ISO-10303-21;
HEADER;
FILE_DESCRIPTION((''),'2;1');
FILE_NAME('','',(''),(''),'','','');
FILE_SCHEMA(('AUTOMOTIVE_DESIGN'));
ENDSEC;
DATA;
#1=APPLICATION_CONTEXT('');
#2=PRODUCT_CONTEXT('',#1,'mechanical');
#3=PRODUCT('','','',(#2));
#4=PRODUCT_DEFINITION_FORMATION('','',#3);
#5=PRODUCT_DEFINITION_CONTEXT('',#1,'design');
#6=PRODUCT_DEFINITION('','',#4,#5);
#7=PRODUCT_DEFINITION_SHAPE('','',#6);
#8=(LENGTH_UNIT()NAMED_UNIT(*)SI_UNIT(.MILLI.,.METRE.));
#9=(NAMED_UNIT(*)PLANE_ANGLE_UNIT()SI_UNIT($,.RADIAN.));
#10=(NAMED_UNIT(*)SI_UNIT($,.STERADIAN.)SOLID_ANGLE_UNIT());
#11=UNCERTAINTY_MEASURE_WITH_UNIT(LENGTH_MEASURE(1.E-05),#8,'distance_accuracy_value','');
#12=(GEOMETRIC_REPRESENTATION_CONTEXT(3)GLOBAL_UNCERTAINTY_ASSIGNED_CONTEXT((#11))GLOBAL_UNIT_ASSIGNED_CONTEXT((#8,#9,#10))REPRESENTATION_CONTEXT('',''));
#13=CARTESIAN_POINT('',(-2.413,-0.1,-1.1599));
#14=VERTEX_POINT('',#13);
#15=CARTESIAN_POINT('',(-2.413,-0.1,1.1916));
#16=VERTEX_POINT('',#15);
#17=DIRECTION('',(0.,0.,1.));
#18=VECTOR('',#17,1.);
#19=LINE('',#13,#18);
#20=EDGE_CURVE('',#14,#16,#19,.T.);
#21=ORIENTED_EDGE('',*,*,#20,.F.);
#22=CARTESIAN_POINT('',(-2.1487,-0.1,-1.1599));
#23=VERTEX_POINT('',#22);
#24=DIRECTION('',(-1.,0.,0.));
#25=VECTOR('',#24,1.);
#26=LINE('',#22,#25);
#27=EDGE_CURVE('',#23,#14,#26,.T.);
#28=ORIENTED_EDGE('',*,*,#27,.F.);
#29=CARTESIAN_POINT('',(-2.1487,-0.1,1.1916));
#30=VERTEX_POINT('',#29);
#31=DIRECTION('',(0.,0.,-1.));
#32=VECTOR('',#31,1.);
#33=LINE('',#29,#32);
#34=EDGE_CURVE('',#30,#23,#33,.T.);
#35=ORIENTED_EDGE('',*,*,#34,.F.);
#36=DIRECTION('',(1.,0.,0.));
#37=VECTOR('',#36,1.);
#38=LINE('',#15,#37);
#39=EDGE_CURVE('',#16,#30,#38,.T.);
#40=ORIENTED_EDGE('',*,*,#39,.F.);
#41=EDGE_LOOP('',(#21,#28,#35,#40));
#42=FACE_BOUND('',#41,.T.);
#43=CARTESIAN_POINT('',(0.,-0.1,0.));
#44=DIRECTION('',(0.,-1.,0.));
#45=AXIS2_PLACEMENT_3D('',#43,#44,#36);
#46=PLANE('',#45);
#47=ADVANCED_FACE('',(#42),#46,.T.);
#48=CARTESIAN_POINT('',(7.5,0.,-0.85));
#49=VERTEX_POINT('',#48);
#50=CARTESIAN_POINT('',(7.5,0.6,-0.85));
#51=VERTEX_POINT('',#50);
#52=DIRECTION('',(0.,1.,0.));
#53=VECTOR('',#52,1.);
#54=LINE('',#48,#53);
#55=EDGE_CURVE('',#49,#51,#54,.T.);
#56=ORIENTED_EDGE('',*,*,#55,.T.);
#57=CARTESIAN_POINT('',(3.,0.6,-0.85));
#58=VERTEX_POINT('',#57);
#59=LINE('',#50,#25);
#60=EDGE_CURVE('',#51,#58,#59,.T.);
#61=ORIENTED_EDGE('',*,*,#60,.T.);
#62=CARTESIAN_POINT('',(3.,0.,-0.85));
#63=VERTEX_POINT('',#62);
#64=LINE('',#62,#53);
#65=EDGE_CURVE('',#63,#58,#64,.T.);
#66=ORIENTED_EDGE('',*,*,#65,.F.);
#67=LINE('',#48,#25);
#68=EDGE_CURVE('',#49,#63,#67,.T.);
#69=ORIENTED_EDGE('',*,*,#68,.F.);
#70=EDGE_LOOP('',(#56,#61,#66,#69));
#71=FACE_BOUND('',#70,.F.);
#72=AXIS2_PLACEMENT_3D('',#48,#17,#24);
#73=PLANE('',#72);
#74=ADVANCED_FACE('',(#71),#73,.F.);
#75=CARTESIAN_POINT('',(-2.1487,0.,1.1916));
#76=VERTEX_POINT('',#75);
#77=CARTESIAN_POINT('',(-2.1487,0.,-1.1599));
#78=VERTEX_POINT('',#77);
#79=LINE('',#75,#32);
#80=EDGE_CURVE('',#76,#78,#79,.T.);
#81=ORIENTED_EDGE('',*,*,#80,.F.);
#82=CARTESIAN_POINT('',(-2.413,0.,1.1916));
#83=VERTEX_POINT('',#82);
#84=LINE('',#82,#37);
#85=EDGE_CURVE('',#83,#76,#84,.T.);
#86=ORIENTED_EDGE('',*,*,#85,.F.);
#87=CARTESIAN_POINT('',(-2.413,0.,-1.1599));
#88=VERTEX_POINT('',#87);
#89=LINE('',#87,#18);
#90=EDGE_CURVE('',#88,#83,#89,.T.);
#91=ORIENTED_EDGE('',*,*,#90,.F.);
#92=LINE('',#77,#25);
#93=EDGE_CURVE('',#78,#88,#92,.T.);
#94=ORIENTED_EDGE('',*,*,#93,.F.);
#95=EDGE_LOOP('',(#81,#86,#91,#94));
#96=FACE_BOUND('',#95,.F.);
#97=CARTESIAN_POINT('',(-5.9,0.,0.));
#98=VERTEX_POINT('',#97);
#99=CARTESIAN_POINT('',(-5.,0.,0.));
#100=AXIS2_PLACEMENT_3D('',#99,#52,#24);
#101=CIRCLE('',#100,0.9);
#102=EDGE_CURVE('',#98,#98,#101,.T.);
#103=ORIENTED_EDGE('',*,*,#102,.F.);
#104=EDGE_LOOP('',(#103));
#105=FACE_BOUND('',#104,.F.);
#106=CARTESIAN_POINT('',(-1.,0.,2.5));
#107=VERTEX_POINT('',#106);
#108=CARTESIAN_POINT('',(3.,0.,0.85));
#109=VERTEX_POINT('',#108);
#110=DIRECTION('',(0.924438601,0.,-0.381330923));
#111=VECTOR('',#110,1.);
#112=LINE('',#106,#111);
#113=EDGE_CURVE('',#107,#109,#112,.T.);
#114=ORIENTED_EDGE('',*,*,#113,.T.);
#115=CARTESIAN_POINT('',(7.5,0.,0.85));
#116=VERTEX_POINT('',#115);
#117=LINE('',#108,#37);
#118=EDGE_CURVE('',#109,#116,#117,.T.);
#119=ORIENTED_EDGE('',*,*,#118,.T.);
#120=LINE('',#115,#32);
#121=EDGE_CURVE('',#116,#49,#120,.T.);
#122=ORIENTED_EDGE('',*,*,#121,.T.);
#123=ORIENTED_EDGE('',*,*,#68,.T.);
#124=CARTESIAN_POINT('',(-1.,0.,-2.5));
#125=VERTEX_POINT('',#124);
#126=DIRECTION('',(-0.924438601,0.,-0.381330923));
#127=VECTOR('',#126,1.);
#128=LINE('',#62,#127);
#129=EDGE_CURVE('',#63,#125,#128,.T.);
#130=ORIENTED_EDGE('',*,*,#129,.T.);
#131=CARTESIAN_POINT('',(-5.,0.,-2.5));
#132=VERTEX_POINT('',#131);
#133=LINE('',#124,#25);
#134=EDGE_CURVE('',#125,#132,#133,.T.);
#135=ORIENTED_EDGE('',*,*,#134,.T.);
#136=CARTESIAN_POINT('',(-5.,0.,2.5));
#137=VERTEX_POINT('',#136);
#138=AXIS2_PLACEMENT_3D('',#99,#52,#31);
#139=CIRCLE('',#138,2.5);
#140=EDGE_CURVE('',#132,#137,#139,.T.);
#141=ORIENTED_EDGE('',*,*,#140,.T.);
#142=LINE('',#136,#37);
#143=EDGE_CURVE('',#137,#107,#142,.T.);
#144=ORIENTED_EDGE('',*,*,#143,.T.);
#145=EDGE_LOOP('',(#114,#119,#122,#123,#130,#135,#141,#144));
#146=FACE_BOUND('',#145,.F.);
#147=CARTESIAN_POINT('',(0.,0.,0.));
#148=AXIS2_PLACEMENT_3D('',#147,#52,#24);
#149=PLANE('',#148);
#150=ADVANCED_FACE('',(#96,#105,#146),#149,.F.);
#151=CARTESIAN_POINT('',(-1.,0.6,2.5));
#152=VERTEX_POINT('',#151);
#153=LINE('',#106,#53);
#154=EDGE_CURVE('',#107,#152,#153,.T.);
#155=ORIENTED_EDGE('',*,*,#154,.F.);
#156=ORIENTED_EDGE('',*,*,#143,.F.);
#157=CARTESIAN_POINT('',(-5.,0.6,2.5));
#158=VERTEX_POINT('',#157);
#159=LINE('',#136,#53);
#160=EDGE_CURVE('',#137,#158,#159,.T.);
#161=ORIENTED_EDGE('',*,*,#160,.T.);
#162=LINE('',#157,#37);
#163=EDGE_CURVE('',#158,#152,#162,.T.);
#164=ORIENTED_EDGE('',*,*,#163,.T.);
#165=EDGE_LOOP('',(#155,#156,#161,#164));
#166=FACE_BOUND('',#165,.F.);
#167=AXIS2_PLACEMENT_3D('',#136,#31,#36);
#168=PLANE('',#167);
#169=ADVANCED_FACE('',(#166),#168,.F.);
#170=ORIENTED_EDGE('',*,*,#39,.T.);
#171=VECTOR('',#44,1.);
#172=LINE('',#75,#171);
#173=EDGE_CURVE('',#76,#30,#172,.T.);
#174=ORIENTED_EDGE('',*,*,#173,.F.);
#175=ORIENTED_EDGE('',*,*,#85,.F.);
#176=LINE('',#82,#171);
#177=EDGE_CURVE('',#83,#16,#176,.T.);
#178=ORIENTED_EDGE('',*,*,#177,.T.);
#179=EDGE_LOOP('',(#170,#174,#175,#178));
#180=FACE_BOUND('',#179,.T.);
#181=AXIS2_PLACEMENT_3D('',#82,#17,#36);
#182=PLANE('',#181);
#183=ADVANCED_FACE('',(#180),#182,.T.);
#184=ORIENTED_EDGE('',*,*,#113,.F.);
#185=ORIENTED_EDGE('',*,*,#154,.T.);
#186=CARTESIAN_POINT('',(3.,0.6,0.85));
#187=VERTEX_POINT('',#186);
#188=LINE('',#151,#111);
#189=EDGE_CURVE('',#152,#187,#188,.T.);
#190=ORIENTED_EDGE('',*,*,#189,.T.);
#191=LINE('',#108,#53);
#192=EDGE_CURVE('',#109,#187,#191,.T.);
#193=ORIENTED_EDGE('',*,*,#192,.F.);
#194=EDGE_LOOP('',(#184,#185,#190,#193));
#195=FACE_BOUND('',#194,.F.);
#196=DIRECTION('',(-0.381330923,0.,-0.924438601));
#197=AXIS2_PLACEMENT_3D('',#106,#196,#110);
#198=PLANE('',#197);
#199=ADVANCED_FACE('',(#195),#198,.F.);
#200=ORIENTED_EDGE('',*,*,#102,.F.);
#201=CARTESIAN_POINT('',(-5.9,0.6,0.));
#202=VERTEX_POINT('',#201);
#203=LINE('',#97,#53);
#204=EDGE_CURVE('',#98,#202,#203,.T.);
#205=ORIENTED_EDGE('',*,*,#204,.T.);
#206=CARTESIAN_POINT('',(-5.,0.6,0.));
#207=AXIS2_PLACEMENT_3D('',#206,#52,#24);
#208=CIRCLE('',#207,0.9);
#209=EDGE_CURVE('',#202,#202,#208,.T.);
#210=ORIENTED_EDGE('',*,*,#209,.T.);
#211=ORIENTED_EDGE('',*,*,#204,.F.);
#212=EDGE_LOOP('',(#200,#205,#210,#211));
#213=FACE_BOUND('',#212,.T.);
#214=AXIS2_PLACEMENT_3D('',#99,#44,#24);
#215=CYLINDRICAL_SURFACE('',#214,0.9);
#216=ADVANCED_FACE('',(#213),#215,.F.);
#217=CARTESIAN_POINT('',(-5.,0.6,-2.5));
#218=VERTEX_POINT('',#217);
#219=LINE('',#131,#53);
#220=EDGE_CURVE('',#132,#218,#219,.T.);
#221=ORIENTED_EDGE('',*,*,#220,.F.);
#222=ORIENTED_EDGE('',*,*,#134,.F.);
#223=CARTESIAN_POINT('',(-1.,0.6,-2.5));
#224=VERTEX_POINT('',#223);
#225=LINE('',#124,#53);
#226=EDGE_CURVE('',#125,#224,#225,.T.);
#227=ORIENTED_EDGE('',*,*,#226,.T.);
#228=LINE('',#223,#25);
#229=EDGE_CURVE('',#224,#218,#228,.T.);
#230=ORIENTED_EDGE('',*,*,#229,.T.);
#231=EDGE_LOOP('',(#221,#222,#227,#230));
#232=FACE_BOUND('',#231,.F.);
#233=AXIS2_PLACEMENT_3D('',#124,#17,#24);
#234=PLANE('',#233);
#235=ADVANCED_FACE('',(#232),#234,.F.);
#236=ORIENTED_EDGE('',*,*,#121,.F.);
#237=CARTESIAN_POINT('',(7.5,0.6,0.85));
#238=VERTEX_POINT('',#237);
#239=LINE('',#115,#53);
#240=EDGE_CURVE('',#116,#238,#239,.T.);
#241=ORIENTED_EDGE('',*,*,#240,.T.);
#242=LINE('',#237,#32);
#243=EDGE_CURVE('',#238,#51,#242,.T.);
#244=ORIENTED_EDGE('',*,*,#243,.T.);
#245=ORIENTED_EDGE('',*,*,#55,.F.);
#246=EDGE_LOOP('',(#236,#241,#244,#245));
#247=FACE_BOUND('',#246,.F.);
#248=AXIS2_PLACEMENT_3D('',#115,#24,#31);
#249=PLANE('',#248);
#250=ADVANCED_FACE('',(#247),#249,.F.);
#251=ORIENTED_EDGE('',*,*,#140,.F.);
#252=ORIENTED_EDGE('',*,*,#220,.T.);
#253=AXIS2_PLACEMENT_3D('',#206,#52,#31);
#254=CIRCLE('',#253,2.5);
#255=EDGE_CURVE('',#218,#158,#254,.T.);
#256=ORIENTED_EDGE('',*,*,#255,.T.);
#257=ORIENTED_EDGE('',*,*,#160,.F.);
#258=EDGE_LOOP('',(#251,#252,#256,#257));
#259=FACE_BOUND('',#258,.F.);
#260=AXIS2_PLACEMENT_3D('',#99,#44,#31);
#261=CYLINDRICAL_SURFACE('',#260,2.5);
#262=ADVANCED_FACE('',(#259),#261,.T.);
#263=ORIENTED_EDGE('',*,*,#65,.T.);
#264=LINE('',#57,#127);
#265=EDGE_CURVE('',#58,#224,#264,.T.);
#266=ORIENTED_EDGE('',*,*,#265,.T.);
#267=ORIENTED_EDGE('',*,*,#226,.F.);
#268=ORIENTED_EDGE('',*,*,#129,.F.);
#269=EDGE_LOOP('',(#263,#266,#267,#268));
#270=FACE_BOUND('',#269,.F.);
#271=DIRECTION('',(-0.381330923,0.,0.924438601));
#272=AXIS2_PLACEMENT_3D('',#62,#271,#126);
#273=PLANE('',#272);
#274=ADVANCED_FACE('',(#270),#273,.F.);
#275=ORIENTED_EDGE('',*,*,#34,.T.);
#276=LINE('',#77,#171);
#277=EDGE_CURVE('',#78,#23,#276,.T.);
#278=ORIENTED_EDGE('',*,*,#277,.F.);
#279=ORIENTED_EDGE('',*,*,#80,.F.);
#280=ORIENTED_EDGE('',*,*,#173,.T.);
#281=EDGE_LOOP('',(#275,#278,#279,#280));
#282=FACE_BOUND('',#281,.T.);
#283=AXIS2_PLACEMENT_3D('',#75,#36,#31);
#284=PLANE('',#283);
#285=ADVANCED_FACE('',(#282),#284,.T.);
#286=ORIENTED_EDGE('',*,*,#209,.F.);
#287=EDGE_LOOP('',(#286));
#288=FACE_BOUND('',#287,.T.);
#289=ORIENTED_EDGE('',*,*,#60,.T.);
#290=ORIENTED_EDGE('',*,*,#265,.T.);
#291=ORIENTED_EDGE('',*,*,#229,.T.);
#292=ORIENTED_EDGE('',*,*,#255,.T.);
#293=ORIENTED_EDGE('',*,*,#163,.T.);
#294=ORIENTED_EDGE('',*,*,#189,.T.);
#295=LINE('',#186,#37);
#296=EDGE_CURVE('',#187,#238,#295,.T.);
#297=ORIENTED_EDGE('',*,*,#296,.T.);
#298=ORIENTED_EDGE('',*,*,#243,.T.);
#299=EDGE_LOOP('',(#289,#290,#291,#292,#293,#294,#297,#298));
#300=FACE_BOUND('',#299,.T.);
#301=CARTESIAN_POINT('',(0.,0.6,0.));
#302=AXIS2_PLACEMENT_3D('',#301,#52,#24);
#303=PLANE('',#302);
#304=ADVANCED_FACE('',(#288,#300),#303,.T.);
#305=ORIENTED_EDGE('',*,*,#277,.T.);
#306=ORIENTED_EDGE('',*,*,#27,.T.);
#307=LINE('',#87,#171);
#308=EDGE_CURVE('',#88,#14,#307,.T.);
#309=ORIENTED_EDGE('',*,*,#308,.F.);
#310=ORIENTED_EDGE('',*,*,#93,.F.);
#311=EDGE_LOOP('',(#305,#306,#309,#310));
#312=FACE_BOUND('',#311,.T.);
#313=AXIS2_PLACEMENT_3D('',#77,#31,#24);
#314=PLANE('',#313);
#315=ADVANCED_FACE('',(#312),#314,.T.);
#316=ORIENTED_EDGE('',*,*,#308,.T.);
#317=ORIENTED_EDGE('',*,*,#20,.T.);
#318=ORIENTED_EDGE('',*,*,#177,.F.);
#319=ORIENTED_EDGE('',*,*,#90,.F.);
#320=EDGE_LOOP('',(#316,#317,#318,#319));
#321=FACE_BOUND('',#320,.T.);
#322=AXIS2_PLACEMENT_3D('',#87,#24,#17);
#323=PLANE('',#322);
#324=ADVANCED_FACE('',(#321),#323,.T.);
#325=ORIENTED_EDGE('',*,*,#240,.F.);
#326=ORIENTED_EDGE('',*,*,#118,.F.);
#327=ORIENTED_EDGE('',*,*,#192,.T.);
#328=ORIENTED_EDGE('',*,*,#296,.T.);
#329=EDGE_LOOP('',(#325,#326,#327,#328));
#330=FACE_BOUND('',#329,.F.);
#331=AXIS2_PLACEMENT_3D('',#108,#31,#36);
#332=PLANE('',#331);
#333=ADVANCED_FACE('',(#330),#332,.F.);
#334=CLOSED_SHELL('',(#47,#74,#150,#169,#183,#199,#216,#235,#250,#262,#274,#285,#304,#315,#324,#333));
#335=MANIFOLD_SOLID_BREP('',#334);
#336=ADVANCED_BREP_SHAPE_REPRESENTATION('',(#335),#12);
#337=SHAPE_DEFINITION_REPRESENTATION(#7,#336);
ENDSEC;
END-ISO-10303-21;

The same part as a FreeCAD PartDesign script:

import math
import FreeCAD as App
import Part
import Sketcher

V = App.Vector


def add_polygon(sketch, points):
    """Adds a closed chain of lines whose ends are joined by coincident constraints."""
    first, n = sketch.GeometryCount, len(points)
    for a, b in zip(points, points[1:] + points[:1]):
        sketch.addGeometry(Part.LineSegment(App.Vector(*a, 0), App.Vector(*b, 0)), False)
    for i in range(n):
        sketch.addConstraint(Sketcher.Constraint("Coincident", first + i, 2, first + (i + 1) % n, 1))

doc = App.newDocument("Part")
body = doc.addObject("PartDesign::Body", "Body")

sketch1 = body.newObject("Sketcher::SketchObject", "Sketch")
sketch1.AttachmentSupport = (doc.getObject("XZ_Plane"), [""])
sketch1.MapMode = "FlatFace"
sketch1.addGeometry(Part.LineSegment(V(3, 0.8, 0), V(7.5, 0.8, 0)), False)
sketch1.addGeometry(Part.LineSegment(V(7.5, 0.8, 0), V(7.5, -0.8, 0)), False)
sketch1.addGeometry(Part.LineSegment(V(7.5, -0.8, 0), V(3, -0.8, 0)), False)
sketch1.addGeometry(Part.LineSegment(V(3, -0.8, 0), V(-1, -2.5, 0)), False)
sketch1.addGeometry(Part.LineSegment(V(-1, -2.5, 0), V(-5, -2.5, 0)), False)
sketch1.addGeometry(Part.ArcOfCircle(Part.Circle(V(-5, 0, 0), V(0, 0, 1), 2.5), math.radians(90), math.radians(270)), False)
sketch1.addGeometry(Part.LineSegment(V(-5, 2.5, 0), V(-1, 2.5, 0)), False)
sketch1.addGeometry(Part.LineSegment(V(-1, 2.5, 0), V(3, 0.8, 0)), False)
sketch1.addGeometry(Part.Circle(V(-5, 0, 0), V(0, 0, 1), 0.9), False)
sketch1.addConstraint(Sketcher.Constraint("Coincident", 0, 2, 1, 1))
sketch1.addConstraint(Sketcher.Constraint("Coincident", 1, 2, 2, 1))
sketch1.addConstraint(Sketcher.Constraint("Coincident", 2, 2, 3, 1))
sketch1.addConstraint(Sketcher.Constraint("Coincident", 3, 2, 4, 1))
sketch1.addConstraint(Sketcher.Constraint("Tangent", 4, 2, 5, 2))
sketch1.addConstraint(Sketcher.Constraint("Tangent", 5, 1, 6, 1))
sketch1.addConstraint(Sketcher.Constraint("Coincident", 6, 2, 7, 1))
sketch1.addConstraint(Sketcher.Constraint("Coincident", 7, 2, 0, 1))
sketch1.addConstraint(Sketcher.Constraint("Horizontal", 0))
sketch1.addConstraint(Sketcher.Constraint("Vertical", 1))
sketch1.addConstraint(Sketcher.Constraint("Horizontal", 2))
sketch1.addConstraint(Sketcher.Constraint("Horizontal", 4))
sketch1.addConstraint(Sketcher.Constraint("Horizontal", 6))
sketch1.addConstraint(Sketcher.Constraint("Coincident", 8, 3, 5, 3))
sketch1.addConstraint(Sketcher.Constraint("Symmetric", 3, 2, 6, 2, -1))
sketch1.addConstraint(Sketcher.Constraint("Symmetric", 2, 2, 7, 2, -1))
sketch1.addConstraint(Sketcher.Constraint("Diameter", 8, 1.8))
sketch1.addConstraint(Sketcher.Constraint("Radius", 5, 2.5))
sketch1.addConstraint(Sketcher.Constraint("DistanceX", 4, 2, 4, 1, 4.0))
sketch1.addConstraint(Sketcher.Constraint("DistanceX", 0, 1, 0, 2, 4.5))
sketch1.addConstraint(Sketcher.Constraint("DistanceY", 1, 2, 1, 1, 1.7))
sketch1.addConstraint(Sketcher.Constraint("DistanceX", 5, 3, -1, 1, 5.0))
sketch1.addConstraint(Sketcher.Constraint("DistanceX", -1, 1, 2, 2, 3.0))
pad1 = body.newObject("PartDesign::Pad", "Pad")
pad1.Profile = sketch1
pad1.Length = 0.6
pad1.Reversed = True

sketch2 = body.newObject("Sketcher::SketchObject", "Sketch001")
sketch2.AttachmentSupport = (doc.getObject("XZ_Plane"), [""])
sketch2.MapMode = "FlatFace"
add_polygon(sketch2, [(-2.15, -1.16), (-2.15, 1.19), (-2.41, 1.19), (-2.41, -1.16)])
sketch2.addConstraint(Sketcher.Constraint("Vertical", 0))
sketch2.addConstraint(Sketcher.Constraint("Horizontal", 1))
sketch2.addConstraint(Sketcher.Constraint("Vertical", 2))
sketch2.addConstraint(Sketcher.Constraint("Horizontal", 3))
sketch2.addConstraint(Sketcher.Constraint("DistanceY", 2, 2, -1, 1, 1.16))
sketch2.addConstraint(Sketcher.Constraint("DistanceX", 1, 2, 1, 1, 0.2643))
sketch2.addConstraint(Sketcher.Constraint("DistanceY", 0, 1, 0, 2, 2.3515))
sketch2.addConstraint(Sketcher.Constraint("DistanceX", 1, 2, -1, 1, 2.413))
pad2 = body.newObject("PartDesign::Pad", "Pad001")
pad2.Profile = sketch2
pad2.Length = 0.1

doc.recompute()
